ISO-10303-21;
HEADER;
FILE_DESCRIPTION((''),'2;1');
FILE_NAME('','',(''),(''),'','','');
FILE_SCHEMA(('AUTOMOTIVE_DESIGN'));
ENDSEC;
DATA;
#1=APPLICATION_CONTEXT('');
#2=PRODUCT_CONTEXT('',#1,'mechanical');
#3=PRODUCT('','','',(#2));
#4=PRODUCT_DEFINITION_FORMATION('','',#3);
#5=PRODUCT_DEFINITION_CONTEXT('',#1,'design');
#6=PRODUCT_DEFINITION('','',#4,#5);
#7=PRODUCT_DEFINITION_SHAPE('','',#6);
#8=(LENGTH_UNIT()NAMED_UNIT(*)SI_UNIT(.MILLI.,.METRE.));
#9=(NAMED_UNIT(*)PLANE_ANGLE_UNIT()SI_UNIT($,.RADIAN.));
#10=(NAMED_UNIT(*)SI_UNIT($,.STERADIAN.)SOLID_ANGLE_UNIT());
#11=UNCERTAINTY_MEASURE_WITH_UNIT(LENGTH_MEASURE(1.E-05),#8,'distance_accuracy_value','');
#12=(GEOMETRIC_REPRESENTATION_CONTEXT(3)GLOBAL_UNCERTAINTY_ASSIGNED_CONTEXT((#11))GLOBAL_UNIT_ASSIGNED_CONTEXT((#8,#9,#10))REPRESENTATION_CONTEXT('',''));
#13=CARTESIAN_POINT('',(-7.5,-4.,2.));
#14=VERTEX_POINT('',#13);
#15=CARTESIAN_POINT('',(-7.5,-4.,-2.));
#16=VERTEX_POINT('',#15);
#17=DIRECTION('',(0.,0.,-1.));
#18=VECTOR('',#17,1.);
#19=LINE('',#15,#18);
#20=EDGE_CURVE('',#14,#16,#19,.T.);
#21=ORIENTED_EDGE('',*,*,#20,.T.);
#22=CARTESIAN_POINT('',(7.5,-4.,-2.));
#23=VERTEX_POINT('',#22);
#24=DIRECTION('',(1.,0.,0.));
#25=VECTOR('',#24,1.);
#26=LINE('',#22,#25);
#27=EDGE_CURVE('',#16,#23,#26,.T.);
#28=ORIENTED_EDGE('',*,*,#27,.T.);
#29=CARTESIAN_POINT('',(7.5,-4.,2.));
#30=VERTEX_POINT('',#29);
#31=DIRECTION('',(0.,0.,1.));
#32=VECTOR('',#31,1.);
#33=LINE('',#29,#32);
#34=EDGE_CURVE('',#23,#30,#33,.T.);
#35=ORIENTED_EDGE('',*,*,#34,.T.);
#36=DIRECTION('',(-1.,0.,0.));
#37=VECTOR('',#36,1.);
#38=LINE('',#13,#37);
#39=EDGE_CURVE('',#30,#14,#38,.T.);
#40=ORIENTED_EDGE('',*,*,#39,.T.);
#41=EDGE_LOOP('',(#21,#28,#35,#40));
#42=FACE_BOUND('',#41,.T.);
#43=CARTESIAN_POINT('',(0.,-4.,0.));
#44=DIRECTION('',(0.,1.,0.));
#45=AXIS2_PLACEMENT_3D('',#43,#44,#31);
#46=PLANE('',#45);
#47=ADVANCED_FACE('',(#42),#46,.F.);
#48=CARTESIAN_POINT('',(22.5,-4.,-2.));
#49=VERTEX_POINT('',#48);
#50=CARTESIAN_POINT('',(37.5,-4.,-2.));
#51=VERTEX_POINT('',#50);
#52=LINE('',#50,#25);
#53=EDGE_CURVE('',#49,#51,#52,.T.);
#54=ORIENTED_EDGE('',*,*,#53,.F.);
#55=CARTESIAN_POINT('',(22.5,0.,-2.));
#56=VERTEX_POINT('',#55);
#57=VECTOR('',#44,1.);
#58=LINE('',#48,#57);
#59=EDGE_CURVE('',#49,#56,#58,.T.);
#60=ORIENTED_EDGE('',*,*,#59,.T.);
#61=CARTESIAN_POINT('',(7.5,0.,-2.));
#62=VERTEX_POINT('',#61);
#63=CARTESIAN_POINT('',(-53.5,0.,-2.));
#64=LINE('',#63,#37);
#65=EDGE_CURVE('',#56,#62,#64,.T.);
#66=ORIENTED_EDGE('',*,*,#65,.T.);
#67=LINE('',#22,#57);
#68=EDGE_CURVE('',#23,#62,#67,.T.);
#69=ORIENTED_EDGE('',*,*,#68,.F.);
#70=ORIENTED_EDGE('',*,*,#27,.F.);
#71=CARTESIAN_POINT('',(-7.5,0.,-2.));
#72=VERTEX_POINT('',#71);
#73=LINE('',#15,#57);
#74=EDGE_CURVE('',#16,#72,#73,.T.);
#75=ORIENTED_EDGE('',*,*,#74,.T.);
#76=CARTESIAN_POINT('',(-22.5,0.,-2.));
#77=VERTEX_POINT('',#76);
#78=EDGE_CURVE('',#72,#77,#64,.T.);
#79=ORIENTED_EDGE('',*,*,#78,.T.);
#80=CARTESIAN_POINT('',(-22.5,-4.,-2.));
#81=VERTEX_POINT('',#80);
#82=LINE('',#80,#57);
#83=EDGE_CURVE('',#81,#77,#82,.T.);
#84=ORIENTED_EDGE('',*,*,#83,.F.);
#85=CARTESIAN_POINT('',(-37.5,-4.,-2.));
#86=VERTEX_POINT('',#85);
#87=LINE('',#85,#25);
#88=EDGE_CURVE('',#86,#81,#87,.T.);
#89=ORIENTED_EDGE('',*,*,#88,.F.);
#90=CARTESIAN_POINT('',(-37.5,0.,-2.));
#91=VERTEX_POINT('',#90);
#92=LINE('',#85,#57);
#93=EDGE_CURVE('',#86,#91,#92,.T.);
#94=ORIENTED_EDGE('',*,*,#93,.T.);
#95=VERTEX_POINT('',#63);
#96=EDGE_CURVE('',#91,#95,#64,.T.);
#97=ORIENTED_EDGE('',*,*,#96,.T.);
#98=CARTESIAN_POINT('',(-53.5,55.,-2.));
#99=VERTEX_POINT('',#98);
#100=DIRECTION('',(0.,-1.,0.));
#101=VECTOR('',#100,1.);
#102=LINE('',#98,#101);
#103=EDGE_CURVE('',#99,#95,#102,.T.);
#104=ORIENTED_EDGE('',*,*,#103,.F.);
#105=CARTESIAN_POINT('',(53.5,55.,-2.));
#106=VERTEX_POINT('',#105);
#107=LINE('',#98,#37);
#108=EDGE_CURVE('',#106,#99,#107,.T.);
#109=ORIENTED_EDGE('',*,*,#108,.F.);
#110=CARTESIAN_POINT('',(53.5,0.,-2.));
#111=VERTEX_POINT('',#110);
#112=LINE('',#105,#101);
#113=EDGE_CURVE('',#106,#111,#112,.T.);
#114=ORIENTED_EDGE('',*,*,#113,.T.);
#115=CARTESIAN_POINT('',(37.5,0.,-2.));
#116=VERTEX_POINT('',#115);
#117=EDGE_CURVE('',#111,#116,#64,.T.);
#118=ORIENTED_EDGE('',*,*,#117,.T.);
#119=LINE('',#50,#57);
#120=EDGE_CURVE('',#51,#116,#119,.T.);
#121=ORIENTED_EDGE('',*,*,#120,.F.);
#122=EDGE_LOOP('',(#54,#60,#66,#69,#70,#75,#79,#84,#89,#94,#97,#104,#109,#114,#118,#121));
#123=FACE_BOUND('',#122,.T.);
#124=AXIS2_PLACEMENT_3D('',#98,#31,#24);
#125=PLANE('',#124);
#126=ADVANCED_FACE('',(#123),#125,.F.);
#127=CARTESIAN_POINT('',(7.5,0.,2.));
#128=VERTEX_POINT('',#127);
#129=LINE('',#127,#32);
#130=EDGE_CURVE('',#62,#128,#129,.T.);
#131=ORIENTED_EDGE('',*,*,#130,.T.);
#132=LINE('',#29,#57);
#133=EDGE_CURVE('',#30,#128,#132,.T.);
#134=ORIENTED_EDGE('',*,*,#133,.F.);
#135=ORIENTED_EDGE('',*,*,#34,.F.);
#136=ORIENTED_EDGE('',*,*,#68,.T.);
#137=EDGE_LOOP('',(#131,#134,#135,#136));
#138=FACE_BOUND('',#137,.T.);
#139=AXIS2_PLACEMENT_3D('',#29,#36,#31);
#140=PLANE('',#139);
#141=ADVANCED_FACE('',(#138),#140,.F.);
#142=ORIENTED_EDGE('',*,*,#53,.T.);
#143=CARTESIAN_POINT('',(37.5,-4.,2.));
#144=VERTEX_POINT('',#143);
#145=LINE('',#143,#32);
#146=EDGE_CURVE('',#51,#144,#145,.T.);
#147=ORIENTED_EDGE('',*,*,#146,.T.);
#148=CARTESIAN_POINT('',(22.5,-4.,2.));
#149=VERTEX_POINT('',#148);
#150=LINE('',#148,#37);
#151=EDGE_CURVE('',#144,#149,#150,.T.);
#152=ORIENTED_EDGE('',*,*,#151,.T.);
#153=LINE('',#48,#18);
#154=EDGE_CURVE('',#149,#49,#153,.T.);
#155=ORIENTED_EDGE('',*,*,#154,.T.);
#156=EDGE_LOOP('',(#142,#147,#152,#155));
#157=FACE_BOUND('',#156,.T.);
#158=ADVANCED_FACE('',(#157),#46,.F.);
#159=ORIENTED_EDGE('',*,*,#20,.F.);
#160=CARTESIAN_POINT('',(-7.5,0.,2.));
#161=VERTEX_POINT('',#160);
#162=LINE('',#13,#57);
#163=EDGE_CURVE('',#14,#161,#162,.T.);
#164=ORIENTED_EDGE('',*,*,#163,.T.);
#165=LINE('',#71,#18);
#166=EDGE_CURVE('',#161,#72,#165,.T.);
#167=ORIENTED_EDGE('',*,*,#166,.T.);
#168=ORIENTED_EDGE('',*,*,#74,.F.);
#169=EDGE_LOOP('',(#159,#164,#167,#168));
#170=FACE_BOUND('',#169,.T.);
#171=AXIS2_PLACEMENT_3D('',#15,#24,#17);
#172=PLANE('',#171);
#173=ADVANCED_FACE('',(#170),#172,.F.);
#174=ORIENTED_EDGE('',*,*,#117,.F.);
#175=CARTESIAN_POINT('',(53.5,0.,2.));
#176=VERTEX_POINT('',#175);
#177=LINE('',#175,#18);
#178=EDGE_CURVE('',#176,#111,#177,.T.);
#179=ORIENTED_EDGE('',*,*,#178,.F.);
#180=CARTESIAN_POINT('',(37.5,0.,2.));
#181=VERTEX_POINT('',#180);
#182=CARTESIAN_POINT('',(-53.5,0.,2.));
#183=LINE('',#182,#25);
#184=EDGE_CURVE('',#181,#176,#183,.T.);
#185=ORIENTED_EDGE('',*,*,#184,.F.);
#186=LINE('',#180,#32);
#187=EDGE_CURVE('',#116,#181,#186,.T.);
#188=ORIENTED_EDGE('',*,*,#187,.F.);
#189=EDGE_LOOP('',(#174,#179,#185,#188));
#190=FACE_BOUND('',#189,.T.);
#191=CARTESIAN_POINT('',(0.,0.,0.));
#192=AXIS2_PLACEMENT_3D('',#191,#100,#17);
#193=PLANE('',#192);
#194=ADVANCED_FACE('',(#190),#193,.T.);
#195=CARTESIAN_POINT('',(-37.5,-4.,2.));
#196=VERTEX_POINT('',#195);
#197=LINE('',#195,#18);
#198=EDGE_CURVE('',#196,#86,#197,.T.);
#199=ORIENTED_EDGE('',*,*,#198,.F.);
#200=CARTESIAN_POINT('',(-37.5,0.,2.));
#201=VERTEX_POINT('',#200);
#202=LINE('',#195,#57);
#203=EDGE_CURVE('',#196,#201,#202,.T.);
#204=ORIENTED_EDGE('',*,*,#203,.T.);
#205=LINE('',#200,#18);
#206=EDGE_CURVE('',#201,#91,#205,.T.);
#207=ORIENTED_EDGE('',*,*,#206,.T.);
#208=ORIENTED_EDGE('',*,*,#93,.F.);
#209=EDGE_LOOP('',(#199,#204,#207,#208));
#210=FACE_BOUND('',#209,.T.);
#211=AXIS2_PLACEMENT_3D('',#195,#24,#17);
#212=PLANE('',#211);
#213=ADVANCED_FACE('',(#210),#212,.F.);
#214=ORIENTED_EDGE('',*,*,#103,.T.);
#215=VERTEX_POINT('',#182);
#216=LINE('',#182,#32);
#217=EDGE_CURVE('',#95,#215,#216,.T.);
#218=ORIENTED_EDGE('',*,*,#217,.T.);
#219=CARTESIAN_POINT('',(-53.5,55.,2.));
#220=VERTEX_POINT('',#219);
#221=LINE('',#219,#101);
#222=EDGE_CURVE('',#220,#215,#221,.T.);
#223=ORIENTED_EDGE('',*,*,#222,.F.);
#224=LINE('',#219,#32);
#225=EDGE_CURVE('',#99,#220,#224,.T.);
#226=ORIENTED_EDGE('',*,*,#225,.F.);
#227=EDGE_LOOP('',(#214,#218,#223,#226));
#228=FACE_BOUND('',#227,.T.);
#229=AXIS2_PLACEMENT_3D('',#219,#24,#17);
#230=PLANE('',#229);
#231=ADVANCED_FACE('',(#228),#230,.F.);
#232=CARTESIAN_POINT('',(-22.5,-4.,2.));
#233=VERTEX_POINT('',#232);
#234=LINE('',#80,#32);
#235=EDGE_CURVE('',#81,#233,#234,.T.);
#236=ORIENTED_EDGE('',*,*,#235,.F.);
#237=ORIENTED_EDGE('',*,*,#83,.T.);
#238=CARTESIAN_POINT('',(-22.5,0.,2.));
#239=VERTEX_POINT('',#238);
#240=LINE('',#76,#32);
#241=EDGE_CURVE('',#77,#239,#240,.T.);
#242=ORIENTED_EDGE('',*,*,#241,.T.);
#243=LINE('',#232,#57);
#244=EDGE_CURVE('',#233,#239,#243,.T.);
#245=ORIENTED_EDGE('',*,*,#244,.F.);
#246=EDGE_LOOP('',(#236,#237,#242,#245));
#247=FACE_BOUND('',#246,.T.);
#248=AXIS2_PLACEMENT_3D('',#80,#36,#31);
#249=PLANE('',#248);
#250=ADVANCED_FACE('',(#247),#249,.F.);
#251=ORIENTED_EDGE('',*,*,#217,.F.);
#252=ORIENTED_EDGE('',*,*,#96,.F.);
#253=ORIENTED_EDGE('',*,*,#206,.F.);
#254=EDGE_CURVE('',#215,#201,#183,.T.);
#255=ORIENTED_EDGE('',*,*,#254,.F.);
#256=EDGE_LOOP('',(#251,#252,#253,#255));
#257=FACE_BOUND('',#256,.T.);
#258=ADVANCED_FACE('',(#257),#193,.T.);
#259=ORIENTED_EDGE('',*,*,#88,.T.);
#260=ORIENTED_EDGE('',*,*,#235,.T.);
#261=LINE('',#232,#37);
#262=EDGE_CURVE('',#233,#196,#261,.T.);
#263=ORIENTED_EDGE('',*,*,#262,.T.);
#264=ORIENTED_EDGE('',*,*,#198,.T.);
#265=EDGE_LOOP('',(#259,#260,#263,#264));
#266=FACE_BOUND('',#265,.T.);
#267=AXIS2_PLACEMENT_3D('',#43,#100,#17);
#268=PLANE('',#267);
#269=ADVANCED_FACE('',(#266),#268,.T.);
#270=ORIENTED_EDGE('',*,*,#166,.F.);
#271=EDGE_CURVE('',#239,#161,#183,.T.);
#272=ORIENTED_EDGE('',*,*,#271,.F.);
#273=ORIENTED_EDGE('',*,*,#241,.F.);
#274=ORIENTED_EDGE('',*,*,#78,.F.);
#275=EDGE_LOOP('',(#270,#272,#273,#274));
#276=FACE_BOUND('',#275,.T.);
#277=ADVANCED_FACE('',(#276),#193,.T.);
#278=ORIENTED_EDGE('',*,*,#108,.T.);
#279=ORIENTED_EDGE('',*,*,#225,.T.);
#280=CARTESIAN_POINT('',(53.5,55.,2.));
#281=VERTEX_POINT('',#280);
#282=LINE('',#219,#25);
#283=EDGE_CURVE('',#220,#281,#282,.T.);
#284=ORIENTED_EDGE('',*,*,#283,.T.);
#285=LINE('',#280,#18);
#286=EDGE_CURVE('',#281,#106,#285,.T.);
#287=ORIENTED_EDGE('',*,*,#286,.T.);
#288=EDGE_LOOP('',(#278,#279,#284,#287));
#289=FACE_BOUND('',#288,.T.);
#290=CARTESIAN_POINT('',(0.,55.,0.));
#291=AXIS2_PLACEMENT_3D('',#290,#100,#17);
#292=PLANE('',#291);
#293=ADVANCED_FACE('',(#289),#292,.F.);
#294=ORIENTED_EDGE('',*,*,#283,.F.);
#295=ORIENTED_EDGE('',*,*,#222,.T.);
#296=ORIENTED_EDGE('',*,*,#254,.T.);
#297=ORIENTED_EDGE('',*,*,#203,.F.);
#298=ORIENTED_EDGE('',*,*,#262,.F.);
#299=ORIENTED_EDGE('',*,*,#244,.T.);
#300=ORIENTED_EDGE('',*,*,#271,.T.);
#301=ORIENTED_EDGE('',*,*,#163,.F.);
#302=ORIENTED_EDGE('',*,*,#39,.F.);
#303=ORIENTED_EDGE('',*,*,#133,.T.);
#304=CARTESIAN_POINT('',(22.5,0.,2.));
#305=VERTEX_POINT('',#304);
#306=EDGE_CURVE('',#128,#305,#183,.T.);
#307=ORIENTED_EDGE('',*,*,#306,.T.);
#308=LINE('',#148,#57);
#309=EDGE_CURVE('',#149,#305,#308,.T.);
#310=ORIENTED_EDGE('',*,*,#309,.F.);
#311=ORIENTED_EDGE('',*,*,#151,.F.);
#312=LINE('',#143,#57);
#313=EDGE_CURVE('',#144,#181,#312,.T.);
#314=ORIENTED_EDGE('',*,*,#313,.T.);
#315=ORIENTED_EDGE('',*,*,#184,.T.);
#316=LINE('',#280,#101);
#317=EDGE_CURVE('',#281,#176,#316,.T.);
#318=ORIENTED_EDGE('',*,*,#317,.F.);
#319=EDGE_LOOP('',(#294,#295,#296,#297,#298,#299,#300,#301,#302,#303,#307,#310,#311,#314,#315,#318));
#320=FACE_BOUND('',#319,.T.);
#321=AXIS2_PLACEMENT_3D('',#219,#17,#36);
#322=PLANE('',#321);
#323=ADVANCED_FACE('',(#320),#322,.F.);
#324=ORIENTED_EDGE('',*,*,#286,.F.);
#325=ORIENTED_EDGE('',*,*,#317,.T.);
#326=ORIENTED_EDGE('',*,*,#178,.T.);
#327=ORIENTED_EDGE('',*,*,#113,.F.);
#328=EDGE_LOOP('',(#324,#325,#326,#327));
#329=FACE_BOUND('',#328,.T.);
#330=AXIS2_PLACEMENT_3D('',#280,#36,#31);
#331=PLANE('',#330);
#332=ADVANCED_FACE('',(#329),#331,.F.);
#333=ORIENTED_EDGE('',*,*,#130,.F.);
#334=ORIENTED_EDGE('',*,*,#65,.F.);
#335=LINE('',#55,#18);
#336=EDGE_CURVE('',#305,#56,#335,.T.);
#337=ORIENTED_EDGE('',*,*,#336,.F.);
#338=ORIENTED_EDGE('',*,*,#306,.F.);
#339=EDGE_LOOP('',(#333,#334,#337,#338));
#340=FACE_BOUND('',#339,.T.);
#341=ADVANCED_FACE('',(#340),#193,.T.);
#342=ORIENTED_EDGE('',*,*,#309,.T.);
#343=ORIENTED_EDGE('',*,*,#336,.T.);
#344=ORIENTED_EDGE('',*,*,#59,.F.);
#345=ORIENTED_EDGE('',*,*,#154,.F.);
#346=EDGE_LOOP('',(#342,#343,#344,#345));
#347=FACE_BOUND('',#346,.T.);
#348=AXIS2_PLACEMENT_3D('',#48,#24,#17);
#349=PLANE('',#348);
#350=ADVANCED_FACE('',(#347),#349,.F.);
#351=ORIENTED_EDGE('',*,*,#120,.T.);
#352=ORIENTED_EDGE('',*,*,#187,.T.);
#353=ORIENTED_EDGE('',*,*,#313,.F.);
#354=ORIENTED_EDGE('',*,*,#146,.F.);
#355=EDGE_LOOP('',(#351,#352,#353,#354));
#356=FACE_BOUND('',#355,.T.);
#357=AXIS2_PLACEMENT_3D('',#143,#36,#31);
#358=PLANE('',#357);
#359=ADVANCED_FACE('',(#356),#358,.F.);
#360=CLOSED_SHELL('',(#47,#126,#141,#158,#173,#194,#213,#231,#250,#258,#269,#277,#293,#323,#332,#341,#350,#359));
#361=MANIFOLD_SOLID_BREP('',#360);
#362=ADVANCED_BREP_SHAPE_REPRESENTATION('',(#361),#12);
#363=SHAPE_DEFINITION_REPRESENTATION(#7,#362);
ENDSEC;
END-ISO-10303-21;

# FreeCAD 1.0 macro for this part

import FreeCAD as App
import Part
import Sketcher

V = App.Vector
Q = App.Units.Quantity


def add_polygon(sketch, points):
    """Adds a closed chain of lines whose ends are joined by coincident constraints."""
    first, n = sketch.GeometryCount, len(points)
    for a, b in zip(points, points[1:] + points[:1]):
        sketch.addGeometry(Part.LineSegment(App.Vector(*a, 0), App.Vector(*b, 0)), False)
    for i in range(n):
        sketch.addConstraint(Sketcher.Constraint("Coincident", first + i, 2, first + (i + 1) % n, 1))

doc = App.newDocument("Part")
params = doc.addObject("Spreadsheet::Sheet", "Params")
for row, (alias, value) in enumerate([
    ("sketch1_width", "107 mm"),
    ("sketch1_height", "4 mm"),
    ("pad1_length", "55 mm"),
    ("sketch2_width", "15 mm"),
    ("sketch2_height", "4 mm"),
    ("pad2_length", "4 mm"),
], start=1):
    params.set(f"A{row}", alias)
    params.set(f"B{row}", "=" + value)
    params.setAlias(f"B{row}", alias)

body = doc.addObject("PartDesign::Body", "Body")

# Sketch on XZ plane
sketch1 = body.newObject("Sketcher::SketchObject", "Sketch")
sketch1.AttachmentSupport = (doc.getObject("XZ_Plane"), [""])
sketch1.MapMode = "FlatFace"
add_polygon(sketch1, [(-53.5, -2), (-53.5, 2), (53.5, 2), (53.5, -2)])  # lines 0-3
sketch1.addConstraint(Sketcher.Constraint("Vertical", 0))
sketch1.addConstraint(Sketcher.Constraint("Horizontal", 1))
sketch1.addConstraint(Sketcher.Constraint("Vertical", 2))
sketch1.addConstraint(Sketcher.Constraint("Horizontal", 3))
sketch1.addConstraint(Sketcher.Constraint("Symmetric", 0, 2, 2, 2, -1, 1))
sketch1.addConstraint(Sketcher.Constraint("DistanceX", 1, 1, 1, 2, Q("107 mm")))
sketch1.addConstraint(Sketcher.Constraint("DistanceY", 0, 1, 0, 2, Q("4 mm")))
sketch1.setExpression("Constraints[9]", "Params.sketch1_width")
sketch1.setExpression("Constraints[10]", "Params.sketch1_height")
pad1 = body.newObject("PartDesign::Pad", "Pad")
pad1.Profile = sketch1
pad1.setExpression("Length", "Params.pad1_length")
pad1.Reversed = True

# Sketch on XZ plane
sketch2 = body.newObject("Sketcher::SketchObject", "Sketch001")
sketch2.AttachmentSupport = (doc.getObject("XZ_Plane"), [""])
sketch2.MapMode = "FlatFace"
add_polygon(sketch2, [(-37.5, 2), (-37.5, -2), (-22.5, -2), (-22.5, 2)])  # lines 0-3
add_polygon(sketch2, [(-7.5, 2), (-7.5, -2), (7.5, -2), (7.5, 2)])  # lines 4-7
add_polygon(sketch2, [(22.5, 2), (22.5, -2), (37.5, -2), (37.5, 2)])  # lines 8-11
sketch2.addConstraint(Sketcher.Constraint("Vertical", 0))
sketch2.addConstraint(Sketcher.Constraint("Horizontal", 1))
sketch2.addConstraint(Sketcher.Constraint("Vertical", 2))
sketch2.addConstraint(Sketcher.Constraint("Horizontal", 3))
sketch2.addConstraint(Sketcher.Constraint("Vertical", 4))
sketch2.addConstraint(Sketcher.Constraint("Horizontal", 5))
sketch2.addConstraint(Sketcher.Constraint("Vertical", 6))
sketch2.addConstraint(Sketcher.Constraint("Horizontal", 7))
sketch2.addConstraint(Sketcher.Constraint("Vertical", 8))
sketch2.addConstraint(Sketcher.Constraint("Horizontal", 9))
sketch2.addConstraint(Sketcher.Constraint("Vertical", 10))
sketch2.addConstraint(Sketcher.Constraint("Horizontal", 11))
sketch2.addConstraint(Sketcher.Constraint("Symmetric", 4, 2, 6, 2, -1, 1))
sketch2.addConstraint(Sketcher.Constraint("Symmetric", 2, 2, 8, 2, -1, 1))
sketch2.addConstraint(Sketcher.Constraint("Symmetric", 0, 2, 10, 2, -1, 1))
sketch2.addConstraint(Sketcher.Constraint("Horizontal", 1, 2, 4, 2))
sketch2.addConstraint(Sketcher.Constraint("Horizontal", 3, 2, 6, 2))
sketch2.addConstraint(Sketcher.Constraint("Equal", 3, 5))
sketch2.addConstraint(Sketcher.Constraint("DistanceX", 1, 1, 1, 2, Q("15 mm")))
sketch2.addConstraint(Sketcher.Constraint("DistanceY", 0, 2, 0, 1, Q("4 mm")))
sketch2.addConstraint(Sketcher.Constraint("DistanceX", 1, 2, 4, 2, Q("15 mm")))
sketch2.setExpression("Constraints[30]", "Params.sketch2_width")
sketch2.setExpression("Constraints[31]", "Params.sketch2_height")
pad2 = body.newObject("PartDesign::Pad", "Pad001")
pad2.Profile = sketch2
pad2.setExpression("Length", "Params.pad2_length")

doc.recompute()
